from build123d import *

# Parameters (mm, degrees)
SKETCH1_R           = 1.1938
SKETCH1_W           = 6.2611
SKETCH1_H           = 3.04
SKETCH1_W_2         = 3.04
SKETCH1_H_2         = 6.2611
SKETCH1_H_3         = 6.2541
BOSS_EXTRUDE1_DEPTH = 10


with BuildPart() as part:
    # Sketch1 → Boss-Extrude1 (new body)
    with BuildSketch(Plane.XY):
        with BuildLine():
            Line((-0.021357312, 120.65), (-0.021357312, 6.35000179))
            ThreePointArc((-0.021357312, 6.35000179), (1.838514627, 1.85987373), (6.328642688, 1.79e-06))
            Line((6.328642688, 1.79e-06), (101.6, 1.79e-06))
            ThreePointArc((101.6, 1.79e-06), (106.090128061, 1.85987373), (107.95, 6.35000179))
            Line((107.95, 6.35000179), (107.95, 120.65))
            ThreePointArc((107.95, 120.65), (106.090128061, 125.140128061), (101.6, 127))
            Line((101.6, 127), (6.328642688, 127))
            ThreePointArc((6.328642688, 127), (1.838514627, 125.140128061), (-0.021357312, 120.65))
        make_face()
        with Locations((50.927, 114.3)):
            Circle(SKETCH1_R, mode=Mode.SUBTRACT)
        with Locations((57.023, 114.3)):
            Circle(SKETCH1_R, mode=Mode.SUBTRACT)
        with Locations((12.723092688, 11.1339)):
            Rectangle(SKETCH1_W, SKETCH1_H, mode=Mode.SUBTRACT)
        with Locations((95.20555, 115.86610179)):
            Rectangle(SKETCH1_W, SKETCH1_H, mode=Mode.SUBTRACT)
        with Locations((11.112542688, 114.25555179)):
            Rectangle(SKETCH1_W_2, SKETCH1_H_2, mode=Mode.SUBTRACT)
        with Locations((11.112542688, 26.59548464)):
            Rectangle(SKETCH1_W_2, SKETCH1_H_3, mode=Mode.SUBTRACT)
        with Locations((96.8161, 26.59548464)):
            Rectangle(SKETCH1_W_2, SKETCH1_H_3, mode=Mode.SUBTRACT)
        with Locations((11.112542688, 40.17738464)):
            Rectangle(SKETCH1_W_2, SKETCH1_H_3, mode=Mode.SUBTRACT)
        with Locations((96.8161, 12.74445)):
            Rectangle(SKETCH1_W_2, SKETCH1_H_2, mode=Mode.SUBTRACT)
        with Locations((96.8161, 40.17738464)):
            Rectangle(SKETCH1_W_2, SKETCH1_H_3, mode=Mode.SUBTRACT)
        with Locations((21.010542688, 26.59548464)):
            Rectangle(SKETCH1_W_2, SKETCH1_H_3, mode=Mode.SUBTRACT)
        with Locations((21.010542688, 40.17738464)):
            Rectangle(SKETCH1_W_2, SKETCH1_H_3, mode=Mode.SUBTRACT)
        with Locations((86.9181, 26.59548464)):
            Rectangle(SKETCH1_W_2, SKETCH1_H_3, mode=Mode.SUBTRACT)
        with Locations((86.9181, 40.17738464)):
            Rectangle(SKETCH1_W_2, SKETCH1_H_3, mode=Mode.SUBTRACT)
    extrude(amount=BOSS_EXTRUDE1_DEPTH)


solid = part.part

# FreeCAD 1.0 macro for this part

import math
import FreeCAD as App
import Part
import Sketcher
from FreeCAD import Vector
Q = App.Units.Quantity


def add_polygon(sketch, points):
    """Adds a closed chain of lines whose ends are joined by coincident constraints."""
    first, n = sketch.GeometryCount, len(points)
    for a, b in zip(points, points[1:] + points[:1]):
        sketch.addGeometry(Part.LineSegment(App.Vector(*a, 0), App.Vector(*b, 0)), False)
    for i in range(n):
        sketch.addConstraint(Sketcher.Constraint("Coincident", first + i, 2, first + (i + 1) % n, 1))

doc = App.newDocument("Part")
body = doc.addObject("PartDesign::Body", "Body")

sketch1 = doc.addObject("Sketcher::SketchObject", "Sketch")
body.addObject(sketch1)
sketch1.AttachmentSupport = (doc.XY_Plane, [""])
sketch1.MapMode = "FlatFace"
sketch1.addGeometry(Part.LineSegment(Vector(0, 120.7, 0), Vector(0, 6.4, 0)), False)
sketch1.addGeometry(Part.ArcOfCircle(Part.Circle(Vector(6.3, 6.4, 0), Vector(0, 0, 1), 6.3), math.radians(180), math.radians(270)), False)
sketch1.addGeometry(Part.LineSegment(Vector(6.3, 0, 0), Vector(101.6, 0, 0)), False)
sketch1.addGeometry(Part.ArcOfCircle(Part.Circle(Vector(101.6, 6.4, 0), Vector(0, 0, 1), 6.3), math.radians(-90), math.radians(0)), False)
sketch1.addGeometry(Part.LineSegment(Vector(108, 6.4, 0), Vector(108, 120.7, 0)), False)
sketch1.addGeometry(Part.ArcOfCircle(Part.Circle(Vector(101.6, 120.7, 0), Vector(0, 0, 1), 6.3), math.radians(0), math.radians(90)), False)
sketch1.addGeometry(Part.LineSegment(Vector(101.6, 127, 0), Vector(6.3, 127, 0)), False)
sketch1.addGeometry(Part.ArcOfCircle(Part.Circle(Vector(6.3, 120.7, 0), Vector(0, 0, 1), 6.3), math.radians(90), math.radians(180)), False)
add_polygon(sketch1, [(15.9, 9.6), (9.6, 9.6), (9.6, 12.7), (15.9, 12.7)])
add_polygon(sketch1, [(12.6, 23.5), (9.6, 23.5), (9.6, 29.7), (12.6, 29.7)])
add_polygon(sketch1, [(22.5, 23.5), (19.5, 23.5), (19.5, 29.7), (22.5, 29.7)])
add_polygon(sketch1, [(12.6, 37.1), (9.6, 37.1), (9.6, 43.3), (12.6, 43.3)])
add_polygon(sketch1, [(22.5, 37.1), (19.5, 37.1), (19.5, 43.3), (22.5, 43.3)])
add_polygon(sketch1, [(98.3, 9.6), (95.3, 9.6), (95.3, 15.9), (98.3, 15.9)])
add_polygon(sketch1, [(88.4, 23.5), (85.4, 23.5), (85.4, 29.7), (88.4, 29.7)])
add_polygon(sketch1, [(98.3, 23.5), (95.3, 23.5), (95.3, 29.7), (98.3, 29.7)])
add_polygon(sketch1, [(88.4, 37.1), (85.4, 37.1), (85.4, 43.3), (88.4, 43.3)])
add_polygon(sketch1, [(98.3, 37.1), (95.3, 37.1), (95.3, 43.3), (98.3, 43.3)])
add_polygon(sketch1, [(12.6, 111.1), (9.6, 111.1), (9.6, 117.4), (12.6, 117.4)])
sketch1.addGeometry(Part.Circle(Vector(50.9, 114.3, 0), Vector(0, 0, 1), 1.2), False)
sketch1.addGeometry(Part.Circle(Vector(57, 114.3, 0), Vector(0, 0, 1), 1.2), False)
add_polygon(sketch1, [(98.3, 114.3), (92.1, 114.3), (92.1, 117.4), (98.3, 117.4)])
sketch1.addConstraint([
    Sketcher.Constraint("Tangent", 0, 2, 1, 1),
    Sketcher.Constraint("Tangent", 1, 2, 2, 1),
    Sketcher.Constraint("Tangent", 2, 2, 3, 1),
    Sketcher.Constraint("Tangent", 3, 2, 4, 1),
    Sketcher.Constraint("Tangent", 4, 2, 5, 1),
    Sketcher.Constraint("Tangent", 5, 2, 6, 1),
    Sketcher.Constraint("Tangent", 6, 2, 7, 1),
    Sketcher.Constraint("Tangent", 7, 2, 0, 1),
    Sketcher.Constraint("Vertical", 0),
    Sketcher.Constraint("Horizontal", 2),
    Sketcher.Constraint("Vertical", 4),
    Sketcher.Constraint("Horizontal", 6),
    Sketcher.Constraint("Horizontal", 8),
    Sketcher.Constraint("Vertical", 9),
    Sketcher.Constraint("Horizontal", 10),
    Sketcher.Constraint("Vertical", 11),
    Sketcher.Constraint("Horizontal", 12),
    Sketcher.Constraint("Vertical", 13),
    Sketcher.Constraint("Horizontal", 14),
    Sketcher.Constraint("Vertical", 15),
    Sketcher.Constraint("Horizontal", 16),
    Sketcher.Constraint("Vertical", 17),
    Sketcher.Constraint("Horizontal", 18),
    Sketcher.Constraint("Vertical", 19),
    Sketcher.Constraint("Horizontal", 20),
    Sketcher.Constraint("Vertical", 21),
    Sketcher.Constraint("Horizontal", 22),
    Sketcher.Constraint("Vertical", 23),
    Sketcher.Constraint("Horizontal", 24),
    Sketcher.Constraint("Vertical", 25),
    Sketcher.Constraint("Horizontal", 26),
    Sketcher.Constraint("Vertical", 27),
    Sketcher.Constraint("Horizontal", 28),
    Sketcher.Constraint("Vertical", 29),
    Sketcher.Constraint("Horizontal", 30),
    Sketcher.Constraint("Vertical", 31),
    Sketcher.Constraint("Horizontal", 32),
    Sketcher.Constraint("Vertical", 33),
    Sketcher.Constraint("Horizontal", 34),
    Sketcher.Constraint("Vertical", 35),
    Sketcher.Constraint("Horizontal", 36),
    Sketcher.Constraint("Vertical", 37),
    Sketcher.Constraint("Horizontal", 38),
    Sketcher.Constraint("Vertical", 39),
    Sketcher.Constraint("Horizontal", 40),
    Sketcher.Constraint("Vertical", 41),
    Sketcher.Constraint("Horizontal", 42),
    Sketcher.Constraint("Vertical", 43),
    Sketcher.Constraint("Horizontal", 44),
    Sketcher.Constraint("Vertical", 45),
    Sketcher.Constraint("Horizontal", 46),
    Sketcher.Constraint("Vertical", 47),
    Sketcher.Constraint("Horizontal", 48),
    Sketcher.Constraint("Vertical", 49),
    Sketcher.Constraint("Horizontal", 50),
    Sketcher.Constraint("Vertical", 51),
    Sketcher.Constraint("Horizontal", 54),
    Sketcher.Constraint("Vertical", 55),
    Sketcher.Constraint("Horizontal", 56),
    Sketcher.Constraint("Vertical", 57),
    Sketcher.Constraint("Equal", 1, 3),
    Sketcher.Constraint("Equal", 3, 5),
    Sketcher.Constraint("Equal", 5, 7),
    Sketcher.Constraint("Equal", 52, 53),
    Sketcher.Constraint("PointOnObject", 1, 2, -1),
    Sketcher.Constraint("Horizontal", 52, 3, 53, 3),
    Sketcher.Constraint("Horizontal", 15, 2, 16, 2),
    Sketcher.Constraint("Horizontal", 14, 2, 17, 2),
    Sketcher.Constraint("Horizontal", 23, 2, 24, 2),
    Sketcher.Constraint("Horizontal", 22, 2, 25, 2),
    Sketcher.Constraint("Horizontal", 11, 2, 28, 2),
    Sketcher.Constraint("Horizontal", 19, 2, 32, 2),
    Sketcher.Constraint("Horizontal", 18, 2, 33, 2),
    Sketcher.Constraint("Horizontal", 35, 2, 36, 2),
    Sketcher.Constraint("Horizontal", 34, 2, 37, 2),
    Sketcher.Constraint("Horizontal", 27, 2, 40, 2),
    Sketcher.Constraint("Horizontal", 26, 2, 41, 2),
    Sketcher.Constraint("Horizontal", 43, 2, 44, 2),
    Sketcher.Constraint("Horizontal", 42, 2, 45, 2),
    Sketcher.Constraint("Horizontal", 50, 2, 55, 2),
    Sketcher.Constraint("Vertical", 9, 2, 12, 2),
    Sketcher.Constraint("Vertical", 13, 2, 20, 2),
    Sketcher.Constraint("Vertical", 15, 2, 22, 2),
    Sketcher.Constraint("Vertical", 17, 2, 24, 2),
    Sketcher.Constraint("Vertical", 19, 2, 26, 2),
    Sketcher.Constraint("Vertical", 29, 2, 36, 2),
    Sketcher.Constraint("Vertical", 31, 2, 38, 2),
    Sketcher.Constraint("Vertical", 33, 2, 40, 2),
    Sketcher.Constraint("Vertical", 35, 2, 42, 2),
    Sketcher.Constraint("Vertical", 37, 2, 44, 2),
    Sketcher.Constraint("Vertical", 39, 2, 46, 2),
    Sketcher.Constraint("Vertical", 21, 2, 48, 2),
    Sketcher.Constraint("Vertical", 23, 2, 50, 2),
    Sketcher.Constraint("Vertical", 47, 2, 56, 2),
    Sketcher.Constraint("Equal", 14, 16),
    Sketcher.Constraint("Equal", 26, 28),
    Sketcher.Constraint("Equal", 30, 32),
    Sketcher.Constraint("Equal", 10, 54),
    Sketcher.Constraint("Equal", 50, 9),
    Sketcher.Constraint("Equal", 19, 21),
    Sketcher.Constraint("Equal", 56, 29),
    Sketcher.Constraint("Equal", 31, 49),
    Sketcher.Constraint("Equal", 11, 55),
    Sketcher.Constraint("Radius", 1, Q("0.25 in")),
    Sketcher.Constraint("Diameter", 52, Q("0.094 in")),
    Sketcher.Constraint("DistanceY", 0, 2, 0, 1, Q("4.4999999 in")),
    Sketcher.Constraint("DistanceX", -1, 1, 3, 3, Q("4 in")),
    Sketcher.Constraint("DistanceY", -1, 1, 52, 3, Q("4.5 in")),
    Sketcher.Constraint("DistanceX", 8, 2, 8, 1, Q("0.2465 in")),
    Sketcher.Constraint("DistanceX", -1, 1, 52, 3, Q("2.005 in")),
    Sketcher.Constraint("DistanceX", -1, 1, 53, 3, Q("2.245 in")),
    Sketcher.Constraint("DistanceY", -1, 1, 29, 2, Q("0.625 in")),
    Sketcher.Constraint("DistanceY", -1, 1, 48, 2, Q("4.3750001 in")),
    Sketcher.Constraint("DistanceX", -1, 1, 54, 2, Q("3.625 in")),
    Sketcher.Constraint("DistanceX", 12, 2, 12, 1, Q("3.04 mm")),
    Sketcher.Constraint("DistanceY", 13, 1, 13, 2, Q("6.2541 mm")),
    Sketcher.Constraint("DistanceX", -1, 1, 32, 2, Q("85.3981 mm")),
    Sketcher.Constraint("DistanceX", 2, 1, 2, 2, Q("95.271357 mm")),
    Sketcher.Constraint("DistanceX", -1, 1, 8, 2, Q("9.592543 mm")),
    Sketcher.Constraint("DistanceY", -1, 1, 12, 2, Q("23.468435 mm")),
    Sketcher.Constraint("DistanceX", -1, 1, 16, 2, Q("19.490543 mm")),
    Sketcher.Constraint("DistanceY", -1, 1, 20, 2, Q("37.050335 mm")),
])
pad1 = doc.addObject("PartDesign::Pad", "Pad")
body.addObject(pad1)
pad1.Profile = sketch1
pad1.Length = 10

doc.recompute()
